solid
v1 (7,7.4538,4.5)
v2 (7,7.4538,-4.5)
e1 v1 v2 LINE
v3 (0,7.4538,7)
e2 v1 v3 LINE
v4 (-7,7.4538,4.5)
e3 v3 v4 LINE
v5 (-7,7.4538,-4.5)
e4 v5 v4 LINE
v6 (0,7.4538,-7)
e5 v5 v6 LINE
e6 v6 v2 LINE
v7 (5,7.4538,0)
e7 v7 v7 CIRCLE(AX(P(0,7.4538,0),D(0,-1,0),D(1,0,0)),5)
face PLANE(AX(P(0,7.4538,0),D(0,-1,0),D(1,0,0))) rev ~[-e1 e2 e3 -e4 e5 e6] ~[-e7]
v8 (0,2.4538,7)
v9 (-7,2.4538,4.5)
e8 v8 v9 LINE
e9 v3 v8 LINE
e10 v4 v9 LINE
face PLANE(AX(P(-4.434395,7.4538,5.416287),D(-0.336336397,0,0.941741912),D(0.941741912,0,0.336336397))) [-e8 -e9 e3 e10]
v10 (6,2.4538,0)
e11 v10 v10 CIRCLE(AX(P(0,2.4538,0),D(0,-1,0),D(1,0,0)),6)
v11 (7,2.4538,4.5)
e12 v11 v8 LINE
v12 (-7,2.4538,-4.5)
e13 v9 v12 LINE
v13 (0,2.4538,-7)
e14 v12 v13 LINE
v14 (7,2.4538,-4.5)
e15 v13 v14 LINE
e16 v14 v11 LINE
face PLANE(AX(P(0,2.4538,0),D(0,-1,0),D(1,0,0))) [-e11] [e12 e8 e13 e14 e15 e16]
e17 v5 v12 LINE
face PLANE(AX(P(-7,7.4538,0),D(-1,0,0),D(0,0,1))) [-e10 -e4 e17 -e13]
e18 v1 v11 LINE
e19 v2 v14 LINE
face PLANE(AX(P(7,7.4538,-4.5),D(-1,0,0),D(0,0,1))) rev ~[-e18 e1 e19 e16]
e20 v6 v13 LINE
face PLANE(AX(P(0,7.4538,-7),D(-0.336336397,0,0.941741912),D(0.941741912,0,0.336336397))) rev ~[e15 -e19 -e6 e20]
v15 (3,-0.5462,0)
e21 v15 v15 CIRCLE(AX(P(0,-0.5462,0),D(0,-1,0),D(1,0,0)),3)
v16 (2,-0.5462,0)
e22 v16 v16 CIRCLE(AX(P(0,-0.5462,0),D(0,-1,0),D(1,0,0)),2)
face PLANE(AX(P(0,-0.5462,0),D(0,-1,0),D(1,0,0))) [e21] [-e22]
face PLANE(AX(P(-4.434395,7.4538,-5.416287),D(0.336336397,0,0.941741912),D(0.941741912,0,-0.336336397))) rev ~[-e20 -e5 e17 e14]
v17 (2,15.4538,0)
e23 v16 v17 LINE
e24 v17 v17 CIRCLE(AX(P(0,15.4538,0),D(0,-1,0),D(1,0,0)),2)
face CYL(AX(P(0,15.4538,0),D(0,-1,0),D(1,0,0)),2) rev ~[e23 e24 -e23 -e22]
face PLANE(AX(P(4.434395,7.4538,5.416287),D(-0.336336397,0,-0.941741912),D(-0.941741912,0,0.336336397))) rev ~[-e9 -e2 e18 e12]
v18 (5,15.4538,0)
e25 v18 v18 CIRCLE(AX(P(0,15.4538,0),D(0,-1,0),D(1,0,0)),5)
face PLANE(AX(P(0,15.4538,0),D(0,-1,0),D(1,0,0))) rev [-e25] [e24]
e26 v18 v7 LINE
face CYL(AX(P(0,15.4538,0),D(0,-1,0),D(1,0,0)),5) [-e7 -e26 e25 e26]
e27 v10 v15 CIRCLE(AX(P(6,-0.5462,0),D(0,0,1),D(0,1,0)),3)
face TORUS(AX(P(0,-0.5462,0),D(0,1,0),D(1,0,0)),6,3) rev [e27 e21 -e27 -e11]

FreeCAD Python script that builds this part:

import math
import FreeCAD as App
import Part
import Sketcher

V = App.Vector


def add_polygon(sketch, points):
    """Adds a closed chain of lines whose ends are joined by coincident constraints."""
    first, n = sketch.GeometryCount, len(points)
    for a, b in zip(points, points[1:] + points[:1]):
        sketch.addGeometry(Part.LineSegment(App.Vector(*a, 0), App.Vector(*b, 0)), False)
    for i in range(n):
        sketch.addConstraint(Sketcher.Constraint("Coincident", first + i, 2, first + (i + 1) % n, 1))

doc = App.newDocument("Part")
body = doc.addObject("PartDesign::Body", "Body")

sketch1 = doc.addObject("Sketcher::SketchObject", "Sketch")
body.addObject(sketch1)
sketch1.AttachmentSupport = (doc.XY_Plane, [""])
sketch1.MapMode = "FlatFace"
add_polygon(sketch1, [(5, 15.5), (2, 15.5), (2, -0.5), (3, -0.5), (3, 2.5), (7, 2.5), (7, 7.5), (5, 7.5)])
sketch1.addConstraint([
    Sketcher.Constraint("Horizontal", 0),
    Sketcher.Constraint("Vertical", 1),
    Sketcher.Constraint("Horizontal", 2),
    Sketcher.Constraint("Vertical", 3),
    Sketcher.Constraint("Horizontal", 4),
    Sketcher.Constraint("Vertical", 5),
    Sketcher.Constraint("Horizontal", 6),
    Sketcher.Constraint("Vertical", 7),
    Sketcher.Constraint("Equal", 0, 3),
    Sketcher.Constraint("DistanceX", 0, 2, 0, 1, 3.0),
    Sketcher.Constraint("DistanceX", 2, 1, 2, 2, 1.0),
    Sketcher.Constraint("DistanceX", 4, 1, 4, 2, 4.0),
    Sketcher.Constraint("DistanceY", 5, 1, 5, 2, 5.0),
    Sketcher.Constraint("DistanceY", 7, 1, 7, 2, 8.0),
    Sketcher.Constraint("DistanceX", -1, 1, 2, 2, 3.0),
    Sketcher.Constraint("DistanceY", -1, 1, 0, 2, 15.4538),
])
revolution = doc.addObject("PartDesign::Revolution", "Revolution")
body.addObject(revolution)
revolution.Profile = sketch1
revolution.ReferenceAxis = (sketch1, ["V_Axis"])
revolution.Angle = 360

sketch2 = doc.addObject("Sketcher::SketchObject", "Sketch001")
body.addObject(sketch2)
sketch2.AttachmentSupport = (doc.XY_Plane, [""])
sketch2.MapMode = "FlatFace"
sketch2.addGeometry([
    Part.LineSegment(V(6, 2.5, 0), V(3, 2.5, 0)),
    Part.LineSegment(V(3, 2.5, 0), V(3, -0.5, 0)),
    Part.ArcOfCircle(Part.Circle(V(6, -0.5, 0), V(0, 0, 1), 3), math.radians(90), math.radians(180)),
], False)
sketch2.addConstraint([
    Sketcher.Constraint("Coincident", 0, 2, 1, 1),
    Sketcher.Constraint("Tangent", 1, 2, 2, 2),
    Sketcher.Constraint("Tangent", 2, 1, 0, 1),
    Sketcher.Constraint("Horizontal", 0),
    Sketcher.Constraint("Vertical", 1),
    Sketcher.Constraint("Radius", 2, 3.0),
    Sketcher.Constraint("DistanceX", -1, 1, 2, 3, 6.0),
    Sketcher.Constraint("DistanceY", 2, 3, -1, 1, 0.5462),
])
revolution2 = doc.addObject("PartDesign::Revolution", "Revolution001")
body.addObject(revolution2)
revolution2.Profile = sketch2
revolution2.ReferenceAxis = (sketch2, ["V_Axis"])
revolution2.Angle = 360

sketch3 = doc.addObject("Sketcher::SketchObject", "Sketch002")
body.addObject(sketch3)
sketch3.AttachmentSupport = (doc.XZ_Plane, [""])
sketch3.MapMode = "FlatFace"
sketch3.AttachmentOffset = App.Placement(V(0, 0, -7.4538), App.Rotation())
sketch3.addGeometry([
    Part.ArcOfCircle(Part.Circle(V(0, 0, 0), V(0, 0, 1), 7), math.radians(51), math.radians(90)),
    Part.LineSegment(V(0, 7, 0), V(4.4, 5.4, 0)),
    Part.ArcOfCircle(Part.Circle(V(0, 0, 0), V(0, 0, 1), 7), math.radians(90), math.radians(129)),
    Part.LineSegment(V(0, 7, 0), V(-4.4, 5.4, 0)),
], False)
sketch3.addConstraint([
    Sketcher.Constraint("Coincident", 0, 1, 1, 2),
    Sketcher.Constraint("Coincident", 1, 1, 0, 2),
    Sketcher.Constraint("Coincident", 2, 1, 3, 1),
    Sketcher.Constraint("Coincident", 3, 2, 2, 2),
    Sketcher.Constraint("Coincident", 0, 3, -1, 1),
    Sketcher.Constraint("Coincident", 2, 3, -1, 1),
    Sketcher.Constraint("Coincident", 2, 1, 1, 1),
    Sketcher.Constraint("PointOnObject", 1, 1, -2),
    Sketcher.Constraint("Horizontal", 0, 1, 3, 2),
    Sketcher.Constraint("Radius", 0, 7.0),
    Sketcher.Constraint("Distance", 1, 4.7087),
])
pocket1 = doc.addObject("PartDesign::Pocket", "Pocket")
body.addObject(pocket1)
pocket1.Profile = sketch3
pocket1.Type = "ThroughAll"
pocket1.Reversed = True

sketch4 = doc.addObject("Sketcher::SketchObject", "Sketch003")
body.addObject(sketch4)
sketch4.AttachmentSupport = (doc.XZ_Plane, [""])
sketch4.MapMode = "FlatFace"
sketch4.AttachmentOffset = App.Placement(V(0, 0, -7.4538), App.Rotation())
sketch4.addGeometry([
    Part.LineSegment(V(0, -7, 0), V(4.4, -5.4, 0)),
    Part.ArcOfCircle(Part.Circle(V(0, 0, 0), V(0, 0, 1), 7), math.radians(-90), math.radians(-51)),
    Part.LineSegment(V(-4.4, -5.4, 0), V(0, -7, 0)),
    Part.ArcOfCircle(Part.Circle(V(0, 0, 0), V(0, 0, 1), 7), math.radians(-129), math.radians(-90)),
], False)
sketch4.addConstraint([
    Sketcher.Constraint("Coincident", 0, 1, 1, 1),
    Sketcher.Constraint("Coincident", 1, 2, 0, 2),
    Sketcher.Constraint("Coincident", 2, 1, 3, 1),
    Sketcher.Constraint("Coincident", 3, 2, 2, 2),
    Sketcher.Constraint("Coincident", 1, 3, -1, 1),
    Sketcher.Constraint("Coincident", 3, 3, -1, 1),
    Sketcher.Constraint("Coincident", 3, 2, 0, 1),
    Sketcher.Constraint("PointOnObject", 0, 1, -2),
    Sketcher.Constraint("Horizontal", 1, 2, 2, 1),
    Sketcher.Constraint("Radius", 1, 7.0),
    Sketcher.Constraint("Distance", 0, 4.7087),
])
pocket2 = doc.addObject("PartDesign::Pocket", "Pocket001")
body.addObject(pocket2)
pocket2.Profile = sketch4
pocket2.Type = "ThroughAll"
pocket2.Reversed = True

sketch5 = doc.addObject("Sketcher::SketchObject", "Sketch004")
body.addObject(sketch5)
sketch5.AttachmentSupport = (doc.XZ_Plane, [""])
sketch5.MapMode = "FlatFace"
sketch5.AttachmentOffset = App.Placement(V(0, 0, -7.4538), App.Rotation())
sketch5.addGeometry([
    Part.LineSegment(V(7, 0, 0), V(7, -4.5, 0)),
    Part.LineSegment(V(7, -4.5, 0), V(4.4, -5.4, 0)),
    Part.ArcOfCircle(Part.Circle(V(0, 0, 0), V(0, 0, 1), 7), math.radians(-51), math.radians(0)),
    Part.LineSegment(V(7, 4.5, 0), V(7, 0, 0)),
    Part.ArcOfCircle(Part.Circle(V(0, 0, 0), V(0, 0, 1), 7), math.radians(0), math.radians(51)),
    Part.LineSegment(V(4.4, 5.4, 0), V(7, 4.5, 0)),
    Part.ArcOfCircle(Part.Circle(V(0, 0, 0), V(0, 0, 1), 7), math.radians(180), math.radians(231)),
    Part.LineSegment(V(-4.4, -5.4, 0), V(-7, -4.5, 0)),
    Part.LineSegment(V(-7, -4.5, 0), V(-7, 0, 0)),
    Part.LineSegment(V(-7, 4.5, 0), V(-4.4, 5.4, 0)),
    Part.ArcOfCircle(Part.Circle(V(0, 0, 0), V(0, 0, 1), 7), math.radians(129), math.radians(180)),
    Part.LineSegment(V(-7, 0, 0), V(-7, 4.5, 0)),
], False)
sketch5.addConstraint([
    Sketcher.Constraint("Coincident", 0, 2, 1, 1),
    Sketcher.Constraint("Coincident", 1, 2, 2, 1),
    Sketcher.Constraint("Tangent", 2, 2, 0, 1),
    Sketcher.Constraint("Tangent", 3, 2, 4, 1),
    Sketcher.Constraint("Coincident", 4, 2, 5, 1),
    Sketcher.Constraint("Coincident", 5, 2, 3, 1),
    Sketcher.Constraint("Coincident", 6, 2, 7, 1),
    Sketcher.Constraint("Coincident", 7, 2, 8, 1),
    Sketcher.Constraint("Tangent", 8, 2, 6, 1),
    Sketcher.Constraint("Coincident", 9, 2, 10, 1),
    Sketcher.Constraint("Tangent", 10, 2, 11, 1),
    Sketcher.Constraint("Coincident", 11, 2, 9, 1),
    Sketcher.Constraint("Vertical", 0),
    Sketcher.Constraint("Vertical", 3),
    Sketcher.Constraint("Vertical", 8),
    Sketcher.Constraint("Vertical", 11),
    Sketcher.Constraint("Coincident", 2, 3, -1, 1),
    Sketcher.Constraint("Coincident", 4, 3, -1, 1),
    Sketcher.Constraint("Coincident", 6, 3, -1, 1),
    Sketcher.Constraint("Coincident", 10, 3, -1, 1),
    Sketcher.Constraint("Equal", 2, 4),
    Sketcher.Constraint("Equal", 4, 6),
    Sketcher.Constraint("Equal", 6, 10),
    Sketcher.Constraint("Parallel", 5, 7),
    Sketcher.Constraint("Parallel", 1, 9),
    Sketcher.Constraint("Horizontal", 1, 2, 6, 2),
    Sketcher.Constraint("Horizontal", 0, 2, 7, 2),
    Sketcher.Constraint("Horizontal", 4, 2, 9, 2),
    Sketcher.Constraint("Vertical", 1, 2, 4, 2),
    Sketcher.Constraint("Radius", 2, 7.0),
    Sketcher.Constraint("DistanceY", 0, 2, 0, 1, 4.5),
    Sketcher.Constraint("Distance", 1, 2.7243),
])
pad1 = doc.addObject("PartDesign::Pad", "Pad")
body.addObject(pad1)
pad1.Profile = sketch5
pad1.Length = 5

doc.recompute()
